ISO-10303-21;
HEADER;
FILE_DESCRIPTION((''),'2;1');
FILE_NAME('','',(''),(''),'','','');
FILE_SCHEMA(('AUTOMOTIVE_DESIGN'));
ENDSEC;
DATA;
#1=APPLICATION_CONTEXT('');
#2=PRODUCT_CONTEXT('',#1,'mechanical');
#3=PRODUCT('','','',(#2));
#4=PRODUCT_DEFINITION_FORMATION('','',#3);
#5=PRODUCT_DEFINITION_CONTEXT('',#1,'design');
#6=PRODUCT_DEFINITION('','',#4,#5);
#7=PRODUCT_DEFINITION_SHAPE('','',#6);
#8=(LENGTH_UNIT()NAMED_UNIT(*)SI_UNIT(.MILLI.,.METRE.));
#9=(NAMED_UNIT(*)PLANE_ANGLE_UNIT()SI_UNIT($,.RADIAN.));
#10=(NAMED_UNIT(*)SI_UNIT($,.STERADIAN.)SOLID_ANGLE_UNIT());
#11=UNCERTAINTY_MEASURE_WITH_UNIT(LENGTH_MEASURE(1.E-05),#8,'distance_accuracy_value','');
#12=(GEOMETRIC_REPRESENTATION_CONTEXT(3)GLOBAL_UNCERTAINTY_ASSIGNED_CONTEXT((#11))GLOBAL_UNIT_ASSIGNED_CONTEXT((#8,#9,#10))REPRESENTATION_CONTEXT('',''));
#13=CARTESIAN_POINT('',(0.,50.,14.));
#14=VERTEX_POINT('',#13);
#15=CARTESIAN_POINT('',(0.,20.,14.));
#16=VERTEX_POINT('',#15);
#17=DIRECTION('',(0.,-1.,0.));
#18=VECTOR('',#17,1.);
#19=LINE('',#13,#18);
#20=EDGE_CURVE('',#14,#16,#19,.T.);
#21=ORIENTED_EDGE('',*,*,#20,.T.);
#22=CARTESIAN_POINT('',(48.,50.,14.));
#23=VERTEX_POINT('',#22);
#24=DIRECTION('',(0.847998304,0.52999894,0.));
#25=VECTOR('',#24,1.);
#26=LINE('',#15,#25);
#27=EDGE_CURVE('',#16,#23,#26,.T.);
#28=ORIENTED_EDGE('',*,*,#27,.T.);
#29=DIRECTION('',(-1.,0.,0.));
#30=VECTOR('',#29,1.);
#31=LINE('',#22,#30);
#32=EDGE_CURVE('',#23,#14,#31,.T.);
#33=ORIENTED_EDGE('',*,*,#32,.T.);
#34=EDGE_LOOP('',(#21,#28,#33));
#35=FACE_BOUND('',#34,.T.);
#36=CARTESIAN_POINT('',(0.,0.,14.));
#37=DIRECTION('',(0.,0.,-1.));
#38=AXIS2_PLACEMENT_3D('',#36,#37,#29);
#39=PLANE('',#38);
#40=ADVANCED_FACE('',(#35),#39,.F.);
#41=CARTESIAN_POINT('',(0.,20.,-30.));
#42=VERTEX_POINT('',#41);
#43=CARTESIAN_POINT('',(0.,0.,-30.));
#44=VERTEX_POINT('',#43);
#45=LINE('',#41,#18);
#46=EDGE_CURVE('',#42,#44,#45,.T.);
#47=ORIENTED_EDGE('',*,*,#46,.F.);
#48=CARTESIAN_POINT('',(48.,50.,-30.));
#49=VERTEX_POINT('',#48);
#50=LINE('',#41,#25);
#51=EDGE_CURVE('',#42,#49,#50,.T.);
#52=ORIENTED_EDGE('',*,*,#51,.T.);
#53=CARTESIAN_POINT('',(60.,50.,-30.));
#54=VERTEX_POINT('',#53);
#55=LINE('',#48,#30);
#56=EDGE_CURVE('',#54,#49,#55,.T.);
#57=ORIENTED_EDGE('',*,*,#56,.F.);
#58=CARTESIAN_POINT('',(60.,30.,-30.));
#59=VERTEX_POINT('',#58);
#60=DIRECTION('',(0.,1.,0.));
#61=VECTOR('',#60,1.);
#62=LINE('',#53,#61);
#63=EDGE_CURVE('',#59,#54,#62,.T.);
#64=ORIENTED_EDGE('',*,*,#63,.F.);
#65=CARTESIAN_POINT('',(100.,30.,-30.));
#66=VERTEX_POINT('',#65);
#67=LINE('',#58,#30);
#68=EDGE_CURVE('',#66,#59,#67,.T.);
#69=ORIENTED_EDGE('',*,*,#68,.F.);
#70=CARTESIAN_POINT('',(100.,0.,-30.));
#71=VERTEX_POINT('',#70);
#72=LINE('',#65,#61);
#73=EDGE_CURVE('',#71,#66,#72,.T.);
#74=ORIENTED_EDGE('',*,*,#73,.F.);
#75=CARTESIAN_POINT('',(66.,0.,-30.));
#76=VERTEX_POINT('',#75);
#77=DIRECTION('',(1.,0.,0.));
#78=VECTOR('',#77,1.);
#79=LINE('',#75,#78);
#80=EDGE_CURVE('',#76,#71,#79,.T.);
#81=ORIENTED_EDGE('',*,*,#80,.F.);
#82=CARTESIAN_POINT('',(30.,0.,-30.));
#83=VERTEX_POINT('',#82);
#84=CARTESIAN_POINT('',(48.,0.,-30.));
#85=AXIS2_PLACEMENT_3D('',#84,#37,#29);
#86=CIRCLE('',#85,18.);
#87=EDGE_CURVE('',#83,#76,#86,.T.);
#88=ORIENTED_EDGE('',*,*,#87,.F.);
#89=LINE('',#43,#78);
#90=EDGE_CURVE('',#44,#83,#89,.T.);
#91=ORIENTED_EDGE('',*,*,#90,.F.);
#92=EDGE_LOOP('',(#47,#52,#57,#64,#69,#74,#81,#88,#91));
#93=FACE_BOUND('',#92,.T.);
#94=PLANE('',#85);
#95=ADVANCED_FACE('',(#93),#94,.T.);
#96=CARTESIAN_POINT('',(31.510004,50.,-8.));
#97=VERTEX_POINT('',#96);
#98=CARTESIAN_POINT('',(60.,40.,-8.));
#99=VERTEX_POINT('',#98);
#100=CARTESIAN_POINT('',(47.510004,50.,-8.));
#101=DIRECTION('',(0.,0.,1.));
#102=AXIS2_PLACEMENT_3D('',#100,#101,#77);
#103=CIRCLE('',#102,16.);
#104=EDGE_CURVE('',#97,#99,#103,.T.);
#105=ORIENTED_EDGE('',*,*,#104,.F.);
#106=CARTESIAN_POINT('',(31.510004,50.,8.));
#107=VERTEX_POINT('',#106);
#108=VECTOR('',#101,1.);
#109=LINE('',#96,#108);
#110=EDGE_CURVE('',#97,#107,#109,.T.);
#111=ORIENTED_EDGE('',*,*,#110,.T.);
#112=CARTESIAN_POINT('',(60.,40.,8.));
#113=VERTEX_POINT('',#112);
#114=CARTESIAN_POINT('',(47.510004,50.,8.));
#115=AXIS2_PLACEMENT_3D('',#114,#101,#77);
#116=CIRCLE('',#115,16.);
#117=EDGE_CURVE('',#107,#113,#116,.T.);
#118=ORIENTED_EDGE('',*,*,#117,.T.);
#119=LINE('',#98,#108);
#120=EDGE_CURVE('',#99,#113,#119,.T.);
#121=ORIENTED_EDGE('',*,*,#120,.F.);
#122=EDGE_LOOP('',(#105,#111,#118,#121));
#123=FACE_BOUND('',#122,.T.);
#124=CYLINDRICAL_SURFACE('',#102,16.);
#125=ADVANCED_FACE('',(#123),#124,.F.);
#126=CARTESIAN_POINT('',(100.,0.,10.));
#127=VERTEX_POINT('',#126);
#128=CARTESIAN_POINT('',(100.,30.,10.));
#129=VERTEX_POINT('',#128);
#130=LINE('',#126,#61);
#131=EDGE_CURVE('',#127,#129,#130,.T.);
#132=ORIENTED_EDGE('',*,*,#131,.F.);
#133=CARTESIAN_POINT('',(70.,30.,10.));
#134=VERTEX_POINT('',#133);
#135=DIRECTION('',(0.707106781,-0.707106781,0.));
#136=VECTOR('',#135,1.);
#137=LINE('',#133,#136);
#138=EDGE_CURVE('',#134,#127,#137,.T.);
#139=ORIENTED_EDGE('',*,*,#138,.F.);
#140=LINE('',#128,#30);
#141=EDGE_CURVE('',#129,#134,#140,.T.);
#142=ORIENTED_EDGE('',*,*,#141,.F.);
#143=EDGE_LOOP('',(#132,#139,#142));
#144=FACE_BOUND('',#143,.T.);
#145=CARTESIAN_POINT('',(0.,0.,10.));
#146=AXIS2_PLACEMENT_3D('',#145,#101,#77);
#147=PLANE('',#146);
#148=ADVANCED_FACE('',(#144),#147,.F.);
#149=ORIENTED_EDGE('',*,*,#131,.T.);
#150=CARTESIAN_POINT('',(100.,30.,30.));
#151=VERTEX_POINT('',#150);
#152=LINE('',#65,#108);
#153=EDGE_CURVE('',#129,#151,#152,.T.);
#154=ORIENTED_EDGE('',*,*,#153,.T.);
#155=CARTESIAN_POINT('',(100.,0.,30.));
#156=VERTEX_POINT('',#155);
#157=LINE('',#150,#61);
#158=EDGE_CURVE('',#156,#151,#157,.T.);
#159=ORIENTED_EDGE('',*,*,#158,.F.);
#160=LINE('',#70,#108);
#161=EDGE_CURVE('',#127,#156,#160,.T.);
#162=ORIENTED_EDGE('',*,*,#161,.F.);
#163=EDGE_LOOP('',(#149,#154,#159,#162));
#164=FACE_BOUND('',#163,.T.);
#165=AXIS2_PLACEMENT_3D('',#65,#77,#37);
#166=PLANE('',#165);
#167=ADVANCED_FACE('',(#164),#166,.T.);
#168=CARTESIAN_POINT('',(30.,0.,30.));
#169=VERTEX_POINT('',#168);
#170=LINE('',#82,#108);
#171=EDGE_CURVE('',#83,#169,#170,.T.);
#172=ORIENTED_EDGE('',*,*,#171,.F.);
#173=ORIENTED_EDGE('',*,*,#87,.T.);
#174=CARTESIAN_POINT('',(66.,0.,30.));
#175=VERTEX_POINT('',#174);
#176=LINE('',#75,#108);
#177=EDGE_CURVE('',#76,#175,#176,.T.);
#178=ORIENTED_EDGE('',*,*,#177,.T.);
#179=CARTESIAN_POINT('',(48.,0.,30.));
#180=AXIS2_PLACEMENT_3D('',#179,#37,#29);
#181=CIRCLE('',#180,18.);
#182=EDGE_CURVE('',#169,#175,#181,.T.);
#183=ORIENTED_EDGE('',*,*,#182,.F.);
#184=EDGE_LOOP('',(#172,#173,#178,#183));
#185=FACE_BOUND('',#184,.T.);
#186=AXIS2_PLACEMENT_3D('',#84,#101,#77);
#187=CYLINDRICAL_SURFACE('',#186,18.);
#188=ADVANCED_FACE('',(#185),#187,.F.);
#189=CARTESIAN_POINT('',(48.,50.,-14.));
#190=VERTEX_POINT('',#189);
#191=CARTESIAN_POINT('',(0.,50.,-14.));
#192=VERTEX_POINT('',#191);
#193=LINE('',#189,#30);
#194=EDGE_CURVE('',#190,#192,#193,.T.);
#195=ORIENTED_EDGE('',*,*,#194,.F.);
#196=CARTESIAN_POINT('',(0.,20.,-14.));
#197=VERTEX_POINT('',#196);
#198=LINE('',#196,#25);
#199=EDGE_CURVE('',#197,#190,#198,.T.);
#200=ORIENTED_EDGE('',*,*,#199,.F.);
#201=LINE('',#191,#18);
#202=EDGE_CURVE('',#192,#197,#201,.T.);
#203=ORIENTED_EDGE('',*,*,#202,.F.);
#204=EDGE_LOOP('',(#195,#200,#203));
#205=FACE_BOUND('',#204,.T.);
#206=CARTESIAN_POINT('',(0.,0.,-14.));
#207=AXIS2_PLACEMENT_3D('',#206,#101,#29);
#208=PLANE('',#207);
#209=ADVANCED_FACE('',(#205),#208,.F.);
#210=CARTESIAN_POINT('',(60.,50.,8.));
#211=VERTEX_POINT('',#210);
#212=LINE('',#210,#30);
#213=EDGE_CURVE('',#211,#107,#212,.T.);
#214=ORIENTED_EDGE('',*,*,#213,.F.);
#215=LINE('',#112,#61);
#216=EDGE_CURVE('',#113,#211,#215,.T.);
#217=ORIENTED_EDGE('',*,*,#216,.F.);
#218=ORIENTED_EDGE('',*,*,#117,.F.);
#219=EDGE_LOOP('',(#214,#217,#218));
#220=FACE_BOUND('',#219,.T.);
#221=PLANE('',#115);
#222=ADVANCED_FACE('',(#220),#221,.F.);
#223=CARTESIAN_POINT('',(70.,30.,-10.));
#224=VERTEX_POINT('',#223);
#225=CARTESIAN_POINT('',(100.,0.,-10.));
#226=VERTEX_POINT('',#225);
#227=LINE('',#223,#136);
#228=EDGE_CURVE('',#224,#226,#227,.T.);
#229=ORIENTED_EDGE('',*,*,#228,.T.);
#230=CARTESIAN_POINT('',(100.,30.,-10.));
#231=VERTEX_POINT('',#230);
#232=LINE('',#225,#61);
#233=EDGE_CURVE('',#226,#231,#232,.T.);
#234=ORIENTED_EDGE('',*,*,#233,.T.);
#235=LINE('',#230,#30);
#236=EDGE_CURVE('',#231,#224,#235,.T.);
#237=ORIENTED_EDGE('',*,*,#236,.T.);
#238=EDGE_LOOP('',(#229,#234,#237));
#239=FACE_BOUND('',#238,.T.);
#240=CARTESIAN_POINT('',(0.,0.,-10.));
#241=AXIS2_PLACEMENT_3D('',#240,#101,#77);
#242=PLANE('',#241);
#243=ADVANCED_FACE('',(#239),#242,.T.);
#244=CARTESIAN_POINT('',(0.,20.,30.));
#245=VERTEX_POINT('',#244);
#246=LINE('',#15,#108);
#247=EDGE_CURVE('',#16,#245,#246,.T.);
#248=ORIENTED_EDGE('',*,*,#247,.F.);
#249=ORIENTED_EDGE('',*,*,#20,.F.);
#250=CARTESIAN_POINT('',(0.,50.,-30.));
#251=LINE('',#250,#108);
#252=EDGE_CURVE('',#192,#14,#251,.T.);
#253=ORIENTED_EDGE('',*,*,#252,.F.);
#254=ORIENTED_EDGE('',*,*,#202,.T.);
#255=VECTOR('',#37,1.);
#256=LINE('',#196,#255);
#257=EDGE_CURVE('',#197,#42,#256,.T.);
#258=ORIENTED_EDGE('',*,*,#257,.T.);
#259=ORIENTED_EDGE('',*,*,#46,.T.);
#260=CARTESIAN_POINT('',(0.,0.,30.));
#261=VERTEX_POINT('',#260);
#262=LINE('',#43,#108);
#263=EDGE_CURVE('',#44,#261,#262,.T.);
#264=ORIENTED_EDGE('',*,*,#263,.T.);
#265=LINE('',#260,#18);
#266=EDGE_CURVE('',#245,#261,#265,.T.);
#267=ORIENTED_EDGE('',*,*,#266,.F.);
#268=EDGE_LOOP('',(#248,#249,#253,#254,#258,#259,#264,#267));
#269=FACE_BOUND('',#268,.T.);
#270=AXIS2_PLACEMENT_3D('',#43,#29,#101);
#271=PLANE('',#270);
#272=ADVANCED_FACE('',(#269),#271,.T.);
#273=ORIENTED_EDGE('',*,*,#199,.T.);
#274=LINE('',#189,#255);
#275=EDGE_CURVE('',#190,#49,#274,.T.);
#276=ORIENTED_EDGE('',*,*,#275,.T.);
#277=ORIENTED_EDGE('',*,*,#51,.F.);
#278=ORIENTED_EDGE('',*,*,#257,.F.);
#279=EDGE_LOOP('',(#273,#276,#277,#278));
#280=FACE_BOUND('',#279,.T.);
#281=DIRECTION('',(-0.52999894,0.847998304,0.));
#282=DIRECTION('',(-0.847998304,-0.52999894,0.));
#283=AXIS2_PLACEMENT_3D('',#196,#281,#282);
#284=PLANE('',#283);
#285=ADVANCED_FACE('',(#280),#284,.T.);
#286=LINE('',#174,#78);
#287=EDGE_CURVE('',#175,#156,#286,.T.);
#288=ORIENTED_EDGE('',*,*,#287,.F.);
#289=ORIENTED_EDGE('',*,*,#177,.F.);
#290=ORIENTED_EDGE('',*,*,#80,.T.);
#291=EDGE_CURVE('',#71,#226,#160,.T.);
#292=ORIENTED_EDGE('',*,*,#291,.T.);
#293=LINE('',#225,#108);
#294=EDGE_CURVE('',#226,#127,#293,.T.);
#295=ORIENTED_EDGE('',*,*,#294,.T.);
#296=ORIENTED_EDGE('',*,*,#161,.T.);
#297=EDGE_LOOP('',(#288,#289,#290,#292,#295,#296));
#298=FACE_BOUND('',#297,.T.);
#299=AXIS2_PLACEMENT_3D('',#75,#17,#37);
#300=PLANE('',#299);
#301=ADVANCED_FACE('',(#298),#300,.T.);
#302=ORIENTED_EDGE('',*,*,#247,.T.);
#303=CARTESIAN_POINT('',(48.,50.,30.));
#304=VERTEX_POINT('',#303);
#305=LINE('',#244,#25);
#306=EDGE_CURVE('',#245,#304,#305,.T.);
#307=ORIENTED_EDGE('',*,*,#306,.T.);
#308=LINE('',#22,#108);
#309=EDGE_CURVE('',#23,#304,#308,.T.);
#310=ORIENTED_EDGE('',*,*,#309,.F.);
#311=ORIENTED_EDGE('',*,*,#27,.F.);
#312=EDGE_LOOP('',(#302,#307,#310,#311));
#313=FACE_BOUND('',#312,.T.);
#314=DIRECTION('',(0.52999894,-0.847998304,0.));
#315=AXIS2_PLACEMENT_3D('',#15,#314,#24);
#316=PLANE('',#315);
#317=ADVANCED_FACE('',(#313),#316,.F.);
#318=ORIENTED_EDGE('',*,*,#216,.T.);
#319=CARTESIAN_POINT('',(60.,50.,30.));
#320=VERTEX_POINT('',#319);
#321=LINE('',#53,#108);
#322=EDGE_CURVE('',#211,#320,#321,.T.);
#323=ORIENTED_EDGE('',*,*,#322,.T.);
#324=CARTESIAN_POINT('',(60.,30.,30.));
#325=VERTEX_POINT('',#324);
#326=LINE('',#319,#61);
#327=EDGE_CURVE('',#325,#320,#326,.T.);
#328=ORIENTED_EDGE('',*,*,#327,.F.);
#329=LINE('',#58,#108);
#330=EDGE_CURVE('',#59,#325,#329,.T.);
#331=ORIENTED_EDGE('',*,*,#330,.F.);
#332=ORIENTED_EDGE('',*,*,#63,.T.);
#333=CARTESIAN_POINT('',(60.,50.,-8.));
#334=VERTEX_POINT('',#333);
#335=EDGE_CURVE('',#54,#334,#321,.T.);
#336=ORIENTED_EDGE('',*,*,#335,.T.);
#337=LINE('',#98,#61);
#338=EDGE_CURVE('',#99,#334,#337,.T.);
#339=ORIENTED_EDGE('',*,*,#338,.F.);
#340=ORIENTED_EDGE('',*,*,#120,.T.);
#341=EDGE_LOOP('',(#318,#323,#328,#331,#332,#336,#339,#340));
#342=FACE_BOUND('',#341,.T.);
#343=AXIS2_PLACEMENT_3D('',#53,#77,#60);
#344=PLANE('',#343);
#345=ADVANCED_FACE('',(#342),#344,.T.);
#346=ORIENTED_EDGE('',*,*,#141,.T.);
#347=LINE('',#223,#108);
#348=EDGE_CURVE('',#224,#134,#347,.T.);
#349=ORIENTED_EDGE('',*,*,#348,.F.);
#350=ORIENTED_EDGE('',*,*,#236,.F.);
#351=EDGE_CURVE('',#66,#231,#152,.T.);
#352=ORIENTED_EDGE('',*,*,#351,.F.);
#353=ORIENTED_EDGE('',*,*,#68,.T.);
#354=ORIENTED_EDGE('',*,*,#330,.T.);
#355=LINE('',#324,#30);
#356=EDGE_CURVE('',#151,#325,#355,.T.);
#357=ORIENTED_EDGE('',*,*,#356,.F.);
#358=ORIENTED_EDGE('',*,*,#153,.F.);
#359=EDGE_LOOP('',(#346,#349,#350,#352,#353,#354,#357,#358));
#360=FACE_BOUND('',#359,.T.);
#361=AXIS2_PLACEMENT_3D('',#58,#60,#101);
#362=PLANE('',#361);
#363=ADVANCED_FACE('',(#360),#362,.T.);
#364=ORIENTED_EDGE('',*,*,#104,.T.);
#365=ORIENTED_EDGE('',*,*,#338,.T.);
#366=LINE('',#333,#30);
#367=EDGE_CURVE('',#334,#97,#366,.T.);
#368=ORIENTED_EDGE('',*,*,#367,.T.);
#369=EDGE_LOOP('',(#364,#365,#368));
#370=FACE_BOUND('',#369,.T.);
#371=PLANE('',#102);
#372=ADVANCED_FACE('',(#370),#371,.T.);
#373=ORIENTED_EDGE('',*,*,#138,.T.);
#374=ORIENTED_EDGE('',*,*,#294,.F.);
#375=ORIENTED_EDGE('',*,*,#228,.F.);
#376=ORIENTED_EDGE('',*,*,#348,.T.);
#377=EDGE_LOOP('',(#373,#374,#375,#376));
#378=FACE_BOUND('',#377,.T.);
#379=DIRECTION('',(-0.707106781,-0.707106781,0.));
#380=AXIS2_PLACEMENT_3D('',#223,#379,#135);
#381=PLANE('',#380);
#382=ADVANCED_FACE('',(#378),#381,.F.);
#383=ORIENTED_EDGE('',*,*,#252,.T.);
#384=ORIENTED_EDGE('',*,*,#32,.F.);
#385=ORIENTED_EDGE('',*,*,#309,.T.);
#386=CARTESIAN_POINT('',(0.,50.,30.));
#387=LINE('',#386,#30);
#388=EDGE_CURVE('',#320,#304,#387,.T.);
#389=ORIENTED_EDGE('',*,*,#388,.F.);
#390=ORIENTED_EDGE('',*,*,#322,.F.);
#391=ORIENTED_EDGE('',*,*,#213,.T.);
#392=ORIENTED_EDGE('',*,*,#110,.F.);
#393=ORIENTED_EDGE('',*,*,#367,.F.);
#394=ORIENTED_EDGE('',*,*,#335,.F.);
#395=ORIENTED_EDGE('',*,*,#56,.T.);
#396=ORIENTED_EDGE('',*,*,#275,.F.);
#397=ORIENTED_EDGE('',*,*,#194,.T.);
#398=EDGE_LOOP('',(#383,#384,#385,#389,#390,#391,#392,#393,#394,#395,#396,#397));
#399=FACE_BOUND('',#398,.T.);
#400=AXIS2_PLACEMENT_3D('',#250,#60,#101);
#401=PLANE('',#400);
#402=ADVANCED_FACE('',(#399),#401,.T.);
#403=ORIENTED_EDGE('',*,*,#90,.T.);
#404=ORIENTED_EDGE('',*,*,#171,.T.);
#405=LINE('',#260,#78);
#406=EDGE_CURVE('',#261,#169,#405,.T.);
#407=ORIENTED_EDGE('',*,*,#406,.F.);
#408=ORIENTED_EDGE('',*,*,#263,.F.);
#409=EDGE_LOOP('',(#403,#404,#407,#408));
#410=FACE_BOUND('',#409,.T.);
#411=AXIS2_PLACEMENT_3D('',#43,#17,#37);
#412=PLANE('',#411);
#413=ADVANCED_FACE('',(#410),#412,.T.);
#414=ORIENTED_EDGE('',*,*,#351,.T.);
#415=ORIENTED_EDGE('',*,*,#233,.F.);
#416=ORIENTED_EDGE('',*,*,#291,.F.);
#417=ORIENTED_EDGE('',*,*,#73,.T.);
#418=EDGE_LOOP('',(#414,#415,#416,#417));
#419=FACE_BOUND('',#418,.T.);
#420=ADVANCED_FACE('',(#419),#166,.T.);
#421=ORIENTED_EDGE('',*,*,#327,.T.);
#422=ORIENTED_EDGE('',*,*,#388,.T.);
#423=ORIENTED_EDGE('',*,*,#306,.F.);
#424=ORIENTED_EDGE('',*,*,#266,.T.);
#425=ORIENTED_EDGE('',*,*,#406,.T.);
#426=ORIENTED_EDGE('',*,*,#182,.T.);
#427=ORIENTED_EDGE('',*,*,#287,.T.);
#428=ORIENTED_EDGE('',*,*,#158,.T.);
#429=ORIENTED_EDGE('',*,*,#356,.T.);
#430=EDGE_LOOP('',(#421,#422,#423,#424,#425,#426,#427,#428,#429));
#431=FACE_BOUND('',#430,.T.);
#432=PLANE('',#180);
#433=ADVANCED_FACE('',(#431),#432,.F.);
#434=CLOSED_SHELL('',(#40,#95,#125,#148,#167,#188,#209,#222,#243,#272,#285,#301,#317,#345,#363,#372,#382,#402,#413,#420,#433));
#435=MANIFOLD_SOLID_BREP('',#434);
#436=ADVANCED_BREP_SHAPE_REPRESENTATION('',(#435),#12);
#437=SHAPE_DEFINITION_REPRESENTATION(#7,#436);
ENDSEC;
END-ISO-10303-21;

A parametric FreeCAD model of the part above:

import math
import FreeCAD as App
import Part
import Sketcher
Q = App.Units.Quantity


def add_polygon(sketch, points):
    """Adds a closed chain of lines whose ends are joined by coincident constraints."""
    first, n = sketch.GeometryCount, len(points)
    for a, b in zip(points, points[1:] + points[:1]):
        sketch.addGeometry(Part.LineSegment(App.Vector(*a, 0), App.Vector(*b, 0)), False)
    for i in range(n):
        sketch.addConstraint(Sketcher.Constraint("Coincident", first + i, 2, first + (i + 1) % n, 1))

doc = App.newDocument("Part")
params = doc.addObject("Spreadsheet::Sheet", "Params")
for row, (alias, value) in enumerate([
    ("sketch1_radius", "18 mm"),
    ("sketch1_width", "30 mm"),
    ("sketch1_width2", "34 mm"),
    ("sketch1_width3", "40 mm"),
    ("sketch1_height", "50 mm"),
    ("pad1_length", "60 mm"),
    ("sketch2_width", "48 mm"),
    ("sketch2_height", "30 mm"),
    ("pocket1_length", "16 mm"),
    ("sketch3_radius", "16 mm"),
    ("sketch3_height", "10 mm"),
    ("pocket2_length", "16 mm"),
    ("sketch4_width", "30 mm"),
    ("pocket3_length", "20 mm"),
], start=1):
    params.set(f"A{row}", alias)
    params.set(f"B{row}", "=" + value)
    params.setAlias(f"B{row}", alias)

body = doc.addObject("PartDesign::Body", "Body")

sketch1 = body.newObject("Sketcher::SketchObject", "Sketch")
sketch1.AttachmentSupport = (doc.getObject("XY_Plane"), [""])
sketch1.MapMode = "FlatFace"
sketch1.addGeometry([
    Part.LineSegment(App.Vector(0, 50, 0), App.Vector(0, 0, 0)),
    Part.LineSegment(App.Vector(0, 0, 0), App.Vector(30, 0, 0)),
    Part.ArcOfCircle(Part.Circle(App.Vector(48, 0, 0), App.Vector(0, 0, 1), 18), math.radians(0), math.radians(180)),
    Part.LineSegment(App.Vector(66, 0, 0), App.Vector(100, 0, 0)),
    Part.LineSegment(App.Vector(100, 0, 0), App.Vector(100, 30, 0)),
    Part.LineSegment(App.Vector(100, 30, 0), App.Vector(60, 30, 0)),
    Part.LineSegment(App.Vector(60, 30, 0), App.Vector(60, 50, 0)),
    Part.LineSegment(App.Vector(60, 50, 0), App.Vector(0, 50, 0)),
], False)
sketch1.addConstraint([
    Sketcher.Constraint("Coincident", 0, 2, 1, 1),
    Sketcher.Constraint("Coincident", 1, 2, 2, 2),
    Sketcher.Constraint("Coincident", 2, 1, 3, 1),
    Sketcher.Constraint("Coincident", 3, 2, 4, 1),
    Sketcher.Constraint("Coincident", 4, 2, 5, 1),
    Sketcher.Constraint("Coincident", 5, 2, 6, 1),
    Sketcher.Constraint("Coincident", 6, 2, 7, 1),
    Sketcher.Constraint("Coincident", 7, 2, 0, 1),
    Sketcher.Constraint("Vertical", 0),
    Sketcher.Constraint("Horizontal", 1),
    Sketcher.Constraint("Horizontal", 3),
    Sketcher.Constraint("Vertical", 4),
    Sketcher.Constraint("Horizontal", 5),
    Sketcher.Constraint("Vertical", 6),
    Sketcher.Constraint("Horizontal", 7),
    Sketcher.Constraint("Coincident", 0, 2, -1, 1),
    Sketcher.Constraint("PointOnObject", 2, 3, -1),
    Sketcher.Constraint("PointOnObject", 2, 1, -1),
    Sketcher.Constraint("Equal", 1, 4),
    Sketcher.Constraint("Radius", 2, Q("18 mm")),
    Sketcher.Constraint("DistanceX", 1, 1, 1, 2, Q("30 mm")),
    Sketcher.Constraint("DistanceX", 3, 1, 3, 2, Q("34 mm")),
    Sketcher.Constraint("DistanceX", 5, 2, 5, 1, Q("40 mm")),
    Sketcher.Constraint("DistanceY", 0, 2, 0, 1, Q("50 mm")),
])
sketch1.setExpression("Constraints[19]", "Params.sketch1_radius")
sketch1.setExpression("Constraints[20]", "Params.sketch1_width")
sketch1.setExpression("Constraints[21]", "Params.sketch1_width2")
sketch1.setExpression("Constraints[22]", "Params.sketch1_width3")
sketch1.setExpression("Constraints[23]", "Params.sketch1_height")
pad1 = body.newObject("PartDesign::Pad", "Pad")
pad1.Profile = sketch1
pad1.setExpression("Length", "Params.pad1_length")
pad1.Midplane = True

sketch2 = body.newObject("Sketcher::SketchObject", "Sketch001")
sketch2.AttachmentSupport = (doc.getObject("XY_Plane"), [""])
sketch2.MapMode = "FlatFace"
sketch2.AttachmentOffset = App.Placement(App.Vector(0, 0, 30), App.Rotation())
add_polygon(sketch2, [(0, 20), (48, 50), (0, 50)])
sketch2.addConstraint([
    Sketcher.Constraint("Horizontal", 1),
    Sketcher.Constraint("Vertical", 2),
    Sketcher.Constraint("PointOnObject", 1, 2, -2),
    Sketcher.Constraint("DistanceX", 1, 2, 1, 1, Q("48 mm")),
    Sketcher.Constraint("DistanceY", 2, 2, 2, 1, Q("30 mm")),
    Sketcher.Constraint("DistanceY", -1, 1, 0, 2, Q("50 mm")),
])
sketch2.setExpression("Constraints[6]", "Params.sketch2_width")
sketch2.setExpression("Constraints[7]", "Params.sketch2_height")
pocket1 = body.newObject("PartDesign::Pocket", "Pocket")
pocket1.Profile = sketch2
pocket1.setExpression("Length", "Params.pocket1_length")
doc.recompute()

mirrored = body.newObject("PartDesign::Mirrored", "Mirrored")
mirrored.Originals = [pocket1]
mirrored.MirrorPlane = (doc.getObject("XY_Plane"), [""])
body.Tip = mirrored

sketch3 = body.newObject("Sketcher::SketchObject", "Sketch002")
sketch3.AttachmentSupport = (doc.getObject("XY_Plane"), [""])
sketch3.MapMode = "FlatFace"
sketch3.addGeometry([
    Part.LineSegment(App.Vector(60, 50, 0), App.Vector(32, 50, 0)),
    Part.ArcOfCircle(Part.Circle(App.Vector(48, 50, 0), App.Vector(0, 0, 1), 16), math.radians(180), math.radians(321)),
    Part.LineSegment(App.Vector(60, 40, 0), App.Vector(60, 50, 0)),
], False)
sketch3.addConstraint([
    Sketcher.Constraint("Coincident", 0, 2, 1, 1),
    Sketcher.Constraint("Coincident", 1, 2, 2, 1),
    Sketcher.Constraint("Coincident", 2, 2, 0, 1),
    Sketcher.Constraint("Horizontal", 0),
    Sketcher.Constraint("Vertical", 2),
    Sketcher.Constraint("Horizontal", 1, 3, 0, 2),
    Sketcher.Constraint("Radius", 1, Q("16 mm")),
    Sketcher.Constraint("DistanceY", 2, 1, 2, 2, Q("10 mm")),
    Sketcher.Constraint("DistanceY", -1, 1, 1, 3, Q("50 mm")),
    Sketcher.Constraint("DistanceX", -1, 1, 1, 2, Q("60 mm")),
])
sketch3.setExpression("Constraints[6]", "Params.sketch3_radius")
sketch3.setExpression("Constraints[7]", "Params.sketch3_height")
pocket2 = body.newObject("PartDesign::Pocket", "Pocket001")
pocket2.Profile = sketch3
pocket2.setExpression("Length", "Params.pocket2_length")
pocket2.Midplane = True

sketch4 = body.newObject("Sketcher::SketchObject", "Sketch003")
sketch4.AttachmentSupport = (doc.getObject("XY_Plane"), [""])
sketch4.MapMode = "FlatFace"
add_polygon(sketch4, [(100, 0), (100, 30), (70, 30)])
sketch4.addConstraint([
    Sketcher.Constraint("Vertical", 0),
    Sketcher.Constraint("Horizontal", 1),
    Sketcher.Constraint("PointOnObject", 2, 2, -1),
    Sketcher.Constraint("Equal", 1, 0),
    Sketcher.Constraint("DistanceX", 1, 2, 1, 1, Q("30 mm")),
    Sketcher.Constraint("DistanceX", -1, 1, 0, 2, Q("100 mm")),
])
sketch4.setExpression("Constraints[7]", "Params.sketch4_width")
pocket3 = body.newObject("PartDesign::Pocket", "Pocket002")
pocket3.Profile = sketch4
pocket3.setExpression("Length", "Params.pocket3_length")
pocket3.Midplane = True

doc.recompute()
